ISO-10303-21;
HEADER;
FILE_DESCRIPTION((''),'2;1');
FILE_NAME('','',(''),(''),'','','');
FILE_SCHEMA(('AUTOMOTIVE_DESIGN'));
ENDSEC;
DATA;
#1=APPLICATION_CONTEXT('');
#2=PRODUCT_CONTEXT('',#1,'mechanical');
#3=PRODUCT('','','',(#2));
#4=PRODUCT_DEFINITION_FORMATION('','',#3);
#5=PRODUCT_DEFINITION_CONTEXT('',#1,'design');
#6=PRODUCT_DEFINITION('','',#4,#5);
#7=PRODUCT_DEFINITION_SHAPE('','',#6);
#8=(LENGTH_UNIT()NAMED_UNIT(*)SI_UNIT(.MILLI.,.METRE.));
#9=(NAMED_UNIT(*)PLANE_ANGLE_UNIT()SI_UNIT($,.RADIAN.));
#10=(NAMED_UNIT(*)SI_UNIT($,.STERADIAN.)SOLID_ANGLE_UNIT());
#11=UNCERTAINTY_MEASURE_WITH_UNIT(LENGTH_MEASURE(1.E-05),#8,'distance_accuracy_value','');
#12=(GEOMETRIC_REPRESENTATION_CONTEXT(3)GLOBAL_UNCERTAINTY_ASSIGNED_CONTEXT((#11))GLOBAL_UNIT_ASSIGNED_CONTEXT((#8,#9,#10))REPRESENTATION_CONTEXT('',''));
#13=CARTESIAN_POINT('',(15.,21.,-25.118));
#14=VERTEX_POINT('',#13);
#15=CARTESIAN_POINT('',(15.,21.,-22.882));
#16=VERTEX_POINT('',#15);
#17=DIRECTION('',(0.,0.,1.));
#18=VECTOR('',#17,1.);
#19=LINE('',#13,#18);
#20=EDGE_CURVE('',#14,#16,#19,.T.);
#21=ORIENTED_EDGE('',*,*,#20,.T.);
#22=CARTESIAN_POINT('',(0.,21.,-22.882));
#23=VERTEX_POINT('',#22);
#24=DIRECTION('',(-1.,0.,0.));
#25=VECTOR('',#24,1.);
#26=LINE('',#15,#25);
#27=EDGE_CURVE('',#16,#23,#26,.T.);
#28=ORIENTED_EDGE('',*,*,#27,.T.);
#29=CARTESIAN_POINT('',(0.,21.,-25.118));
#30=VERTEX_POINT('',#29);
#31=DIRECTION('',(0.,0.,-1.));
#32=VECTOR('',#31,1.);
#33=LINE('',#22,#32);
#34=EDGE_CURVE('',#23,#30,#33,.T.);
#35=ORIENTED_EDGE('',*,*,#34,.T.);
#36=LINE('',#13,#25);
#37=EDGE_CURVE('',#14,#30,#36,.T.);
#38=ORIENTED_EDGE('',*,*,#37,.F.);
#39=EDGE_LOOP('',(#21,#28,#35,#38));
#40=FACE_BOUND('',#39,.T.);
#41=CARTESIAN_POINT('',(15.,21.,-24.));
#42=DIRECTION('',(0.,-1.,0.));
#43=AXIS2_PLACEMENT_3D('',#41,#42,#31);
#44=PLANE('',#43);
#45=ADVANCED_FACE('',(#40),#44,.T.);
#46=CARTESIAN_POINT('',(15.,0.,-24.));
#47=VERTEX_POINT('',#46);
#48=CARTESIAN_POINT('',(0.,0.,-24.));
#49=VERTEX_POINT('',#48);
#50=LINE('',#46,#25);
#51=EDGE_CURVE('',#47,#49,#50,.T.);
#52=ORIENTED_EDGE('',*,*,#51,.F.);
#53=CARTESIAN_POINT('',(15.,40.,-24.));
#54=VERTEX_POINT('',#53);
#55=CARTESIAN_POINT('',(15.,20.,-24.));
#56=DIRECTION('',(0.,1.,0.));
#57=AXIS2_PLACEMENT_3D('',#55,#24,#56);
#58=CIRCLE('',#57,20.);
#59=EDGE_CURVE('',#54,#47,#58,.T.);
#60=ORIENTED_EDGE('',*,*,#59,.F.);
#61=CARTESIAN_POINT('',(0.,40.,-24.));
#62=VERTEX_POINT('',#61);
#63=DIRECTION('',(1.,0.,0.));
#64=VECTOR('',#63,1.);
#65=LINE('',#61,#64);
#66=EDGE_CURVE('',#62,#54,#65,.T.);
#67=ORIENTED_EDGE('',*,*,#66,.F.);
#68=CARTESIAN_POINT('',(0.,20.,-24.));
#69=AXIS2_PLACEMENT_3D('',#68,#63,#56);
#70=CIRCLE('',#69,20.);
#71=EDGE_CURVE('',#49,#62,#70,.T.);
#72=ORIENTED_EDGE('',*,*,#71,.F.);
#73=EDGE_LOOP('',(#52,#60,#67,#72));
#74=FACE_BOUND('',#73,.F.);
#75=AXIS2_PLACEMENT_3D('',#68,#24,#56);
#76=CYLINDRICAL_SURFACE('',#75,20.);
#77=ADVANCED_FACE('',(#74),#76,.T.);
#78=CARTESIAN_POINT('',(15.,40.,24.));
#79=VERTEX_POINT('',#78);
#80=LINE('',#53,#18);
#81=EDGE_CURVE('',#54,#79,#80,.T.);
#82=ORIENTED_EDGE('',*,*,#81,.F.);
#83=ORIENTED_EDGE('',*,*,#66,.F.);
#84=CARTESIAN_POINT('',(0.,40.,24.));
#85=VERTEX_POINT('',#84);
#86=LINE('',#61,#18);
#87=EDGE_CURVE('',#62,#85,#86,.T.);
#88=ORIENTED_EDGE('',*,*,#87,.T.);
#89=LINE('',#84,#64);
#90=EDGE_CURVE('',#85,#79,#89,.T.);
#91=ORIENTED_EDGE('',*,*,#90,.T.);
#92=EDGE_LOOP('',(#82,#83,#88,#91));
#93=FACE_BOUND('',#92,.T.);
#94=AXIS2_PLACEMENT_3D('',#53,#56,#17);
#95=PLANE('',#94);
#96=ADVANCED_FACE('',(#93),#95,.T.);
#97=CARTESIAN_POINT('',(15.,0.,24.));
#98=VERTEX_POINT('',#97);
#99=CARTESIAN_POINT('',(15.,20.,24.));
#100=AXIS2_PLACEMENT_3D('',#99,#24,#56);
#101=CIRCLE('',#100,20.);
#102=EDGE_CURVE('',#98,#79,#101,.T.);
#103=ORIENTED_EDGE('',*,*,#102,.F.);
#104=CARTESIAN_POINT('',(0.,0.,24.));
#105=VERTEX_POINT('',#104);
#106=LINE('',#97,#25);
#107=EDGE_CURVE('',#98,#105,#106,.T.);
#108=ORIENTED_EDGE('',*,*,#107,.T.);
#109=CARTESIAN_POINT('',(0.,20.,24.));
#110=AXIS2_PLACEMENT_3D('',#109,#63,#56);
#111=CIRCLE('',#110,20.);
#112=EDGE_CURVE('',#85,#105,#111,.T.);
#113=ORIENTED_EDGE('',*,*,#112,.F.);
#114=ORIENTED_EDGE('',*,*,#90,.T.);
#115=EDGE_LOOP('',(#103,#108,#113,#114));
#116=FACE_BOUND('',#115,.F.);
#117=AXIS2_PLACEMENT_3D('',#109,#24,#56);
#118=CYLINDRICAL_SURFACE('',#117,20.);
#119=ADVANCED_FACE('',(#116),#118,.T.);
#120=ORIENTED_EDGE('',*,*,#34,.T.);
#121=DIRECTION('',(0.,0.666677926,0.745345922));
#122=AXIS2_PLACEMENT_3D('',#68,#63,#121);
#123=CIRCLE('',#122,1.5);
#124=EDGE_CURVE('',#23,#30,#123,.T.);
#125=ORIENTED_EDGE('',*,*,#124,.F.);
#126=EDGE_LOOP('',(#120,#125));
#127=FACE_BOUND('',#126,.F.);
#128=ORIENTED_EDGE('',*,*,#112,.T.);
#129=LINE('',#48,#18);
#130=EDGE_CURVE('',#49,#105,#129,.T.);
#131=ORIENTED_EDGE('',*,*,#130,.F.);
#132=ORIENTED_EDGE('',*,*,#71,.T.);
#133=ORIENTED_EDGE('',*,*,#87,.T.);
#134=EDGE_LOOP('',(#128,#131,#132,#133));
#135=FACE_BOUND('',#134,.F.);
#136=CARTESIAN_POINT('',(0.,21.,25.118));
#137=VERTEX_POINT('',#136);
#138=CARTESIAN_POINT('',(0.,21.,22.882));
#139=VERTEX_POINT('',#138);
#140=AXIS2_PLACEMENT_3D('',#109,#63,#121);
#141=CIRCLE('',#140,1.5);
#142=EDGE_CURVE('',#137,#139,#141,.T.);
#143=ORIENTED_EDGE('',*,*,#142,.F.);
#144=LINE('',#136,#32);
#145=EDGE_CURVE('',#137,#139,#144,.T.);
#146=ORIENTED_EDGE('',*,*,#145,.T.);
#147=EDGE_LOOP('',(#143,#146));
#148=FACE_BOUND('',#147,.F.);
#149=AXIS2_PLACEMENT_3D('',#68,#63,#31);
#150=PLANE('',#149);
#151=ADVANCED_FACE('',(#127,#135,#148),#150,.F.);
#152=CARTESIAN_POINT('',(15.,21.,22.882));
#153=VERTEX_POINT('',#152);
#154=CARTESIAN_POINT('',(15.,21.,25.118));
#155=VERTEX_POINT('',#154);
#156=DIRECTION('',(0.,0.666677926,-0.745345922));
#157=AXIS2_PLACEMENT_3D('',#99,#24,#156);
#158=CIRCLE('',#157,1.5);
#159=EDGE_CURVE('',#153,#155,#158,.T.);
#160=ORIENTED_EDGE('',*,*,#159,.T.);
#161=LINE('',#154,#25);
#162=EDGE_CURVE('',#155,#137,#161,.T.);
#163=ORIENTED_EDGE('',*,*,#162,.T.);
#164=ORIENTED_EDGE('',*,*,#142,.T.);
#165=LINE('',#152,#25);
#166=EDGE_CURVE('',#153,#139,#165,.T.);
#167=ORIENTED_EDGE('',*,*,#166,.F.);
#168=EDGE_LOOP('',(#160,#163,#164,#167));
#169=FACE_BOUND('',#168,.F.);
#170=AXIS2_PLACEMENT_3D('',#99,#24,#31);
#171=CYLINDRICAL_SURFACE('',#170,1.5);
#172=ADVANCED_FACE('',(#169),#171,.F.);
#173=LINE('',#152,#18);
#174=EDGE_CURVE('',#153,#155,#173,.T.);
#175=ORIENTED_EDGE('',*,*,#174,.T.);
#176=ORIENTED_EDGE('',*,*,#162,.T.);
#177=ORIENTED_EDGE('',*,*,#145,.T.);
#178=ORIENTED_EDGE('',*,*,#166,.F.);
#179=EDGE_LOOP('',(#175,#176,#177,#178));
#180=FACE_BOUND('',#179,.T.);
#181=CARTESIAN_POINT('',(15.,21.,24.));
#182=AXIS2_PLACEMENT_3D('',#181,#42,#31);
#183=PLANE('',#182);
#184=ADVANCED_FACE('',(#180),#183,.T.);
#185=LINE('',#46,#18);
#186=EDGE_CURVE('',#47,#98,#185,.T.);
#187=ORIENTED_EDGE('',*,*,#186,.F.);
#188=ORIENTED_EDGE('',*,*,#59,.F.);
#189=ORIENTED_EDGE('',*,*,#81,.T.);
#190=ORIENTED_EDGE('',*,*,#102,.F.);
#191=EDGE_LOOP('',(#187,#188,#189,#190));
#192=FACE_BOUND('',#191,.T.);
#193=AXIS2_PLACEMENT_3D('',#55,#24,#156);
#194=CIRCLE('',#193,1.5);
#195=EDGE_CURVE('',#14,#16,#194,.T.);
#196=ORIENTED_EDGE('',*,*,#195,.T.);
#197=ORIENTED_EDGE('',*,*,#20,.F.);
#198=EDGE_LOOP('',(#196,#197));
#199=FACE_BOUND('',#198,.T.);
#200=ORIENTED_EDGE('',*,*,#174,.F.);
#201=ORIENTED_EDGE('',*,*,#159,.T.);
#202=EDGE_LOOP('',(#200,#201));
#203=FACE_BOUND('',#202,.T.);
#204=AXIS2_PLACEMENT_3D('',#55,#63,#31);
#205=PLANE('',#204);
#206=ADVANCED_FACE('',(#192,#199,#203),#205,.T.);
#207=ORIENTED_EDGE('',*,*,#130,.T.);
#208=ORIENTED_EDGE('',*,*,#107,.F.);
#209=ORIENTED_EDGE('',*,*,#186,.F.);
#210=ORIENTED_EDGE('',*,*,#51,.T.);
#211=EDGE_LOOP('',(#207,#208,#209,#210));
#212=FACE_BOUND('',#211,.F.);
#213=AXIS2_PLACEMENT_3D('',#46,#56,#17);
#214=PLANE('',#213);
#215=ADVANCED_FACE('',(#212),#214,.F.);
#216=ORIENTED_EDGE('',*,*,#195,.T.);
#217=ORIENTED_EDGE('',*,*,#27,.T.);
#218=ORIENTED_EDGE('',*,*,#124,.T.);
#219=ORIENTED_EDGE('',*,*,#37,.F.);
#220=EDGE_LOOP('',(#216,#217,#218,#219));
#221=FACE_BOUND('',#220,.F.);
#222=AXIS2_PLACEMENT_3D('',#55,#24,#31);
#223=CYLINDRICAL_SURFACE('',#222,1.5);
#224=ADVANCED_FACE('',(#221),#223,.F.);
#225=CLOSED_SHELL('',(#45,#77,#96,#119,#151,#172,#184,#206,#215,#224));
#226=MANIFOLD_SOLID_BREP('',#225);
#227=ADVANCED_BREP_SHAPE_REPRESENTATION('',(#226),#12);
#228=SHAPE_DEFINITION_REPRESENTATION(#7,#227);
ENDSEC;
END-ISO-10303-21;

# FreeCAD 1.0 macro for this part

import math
import FreeCAD as App
import Part
import Sketcher

doc = App.newDocument("Part")
params = doc.addObject("Spreadsheet::Sheet", "Params")
for row, (alias, value) in enumerate([
    ("sketch1_diameter", "40 mm"),
    ("pad1_length", "15 mm"),
    ("sketch2_radius", "20 mm"),
    ("sketch2_height", "48 mm"),
    ("pad2_length", "15 mm"),
    ("sketch3_diameter", "3 mm"),
    ("hole_diameter", "3 mm"),
    ("sketch4_diameter", "3 mm"),
    ("hole2_diameter", "3 mm"),
    ("sketch5_radius", "1.5 mm"),
    ("pad3_length", "15 mm"),
], start=1):
    params.set(f"A{row}", alias)
    params.set(f"B{row}", "=" + value)
    params.setAlias(f"B{row}", alias)

body = doc.addObject("PartDesign::Body", "Body")
body.AllowCompound = True

# Sketch on YZ plane
sketch1 = body.newObject("Sketcher::SketchObject", "Sketch")
sketch1.AttachmentSupport = (doc.getObject("YZ_Plane"), [""])
sketch1.MapMode = "FlatFace"
sketch1.addGeometry([
    Part.Circle(App.Vector(20, -24, 0), App.Vector(0, 0, 1), 20),
    Part.Circle(App.Vector(20, 24, 0), App.Vector(0, 0, 1), 20),
], False)
sketch1.addConstraint([
    Sketcher.Constraint("Equal", 0, 1),
    Sketcher.Constraint("Symmetric", 0, 3, 1, 3, -1),
    Sketcher.Constraint("Diameter", 0, 40.0),
    Sketcher.Constraint("DistanceY", 0, 3, -1, 1, 24.0),
    Sketcher.Constraint("DistanceX", -1, 1, 0, 3, 20.0),
])
sketch1.setExpression("Constraints[2]", "Params.sketch1_diameter")
pad1 = body.newObject("PartDesign::Pad", "Pad")
pad1.Profile = sketch1
pad1.setExpression("Length", "Params.pad1_length")

# Sketch on YZ plane
sketch2 = body.newObject("Sketcher::SketchObject", "Sketch001")
sketch2.AttachmentSupport = (doc.getObject("YZ_Plane"), [""])
sketch2.MapMode = "FlatFace"
sketch2.AttachmentOffset = App.Placement(App.Vector(0, 0, 15), App.Rotation())
sketch2.addGeometry([
    Part.ArcOfCircle(Part.Circle(App.Vector(20, -24, 0), App.Vector(0, 0, 1), 20), math.radians(0), math.radians(180)),
    Part.LineSegment(App.Vector(40, -24, 0), App.Vector(40, 24, 0)),
    Part.ArcOfCircle(Part.Circle(App.Vector(20, 24, 0), App.Vector(0, 0, 1), 20), math.radians(180), math.radians(360)),
    Part.LineSegment(App.Vector(0, 24, 0), App.Vector(0, -24, 0)),
], False)
sketch2.addConstraint([
    Sketcher.Constraint("Tangent", 0, 1, 1, 1),
    Sketcher.Constraint("Tangent", 1, 2, 2, 2),
    Sketcher.Constraint("Tangent", 2, 1, 3, 1),
    Sketcher.Constraint("Tangent", 3, 2, 0, 2),
    Sketcher.Constraint("Vertical", 1),
    Sketcher.Constraint("Vertical", 3),
    Sketcher.Constraint("Symmetric", 2, 1, 3, 2, -1, 1),
    Sketcher.Constraint("Radius", 0, 20.0),
    Sketcher.Constraint("DistanceY", 1, 1, 1, 2, 48.0),
])
sketch2.setExpression("Constraints[7]", "Params.sketch2_radius")
sketch2.setExpression("Constraints[8]", "Params.sketch2_height")
pad2 = body.newObject("PartDesign::Pad", "Pad001")
pad2.Profile = sketch2
pad2.setExpression("Length", "Params.pad2_length")
pad2.Reversed = True

# Sketch on YZ plane
sketch3 = body.newObject("Sketcher::SketchObject", "Sketch002")
sketch3.AttachmentSupport = (doc.getObject("YZ_Plane"), [""])
sketch3.MapMode = "FlatFace"
sketch3.AttachmentOffset = App.Placement(App.Vector(0, 0, 15), App.Rotation())
sketch3.addGeometry(Part.Circle(App.Vector(20, 24, 0), App.Vector(0, 0, 1), 1.5), False)
sketch3.addConstraint([
    Sketcher.Constraint("Diameter", 0, 3.0),
    Sketcher.Constraint("DistanceX", -1, 1, 0, 3, 20.0),
    Sketcher.Constraint("DistanceY", -1, 1, 0, 3, 24.0),
])
sketch3.setExpression("Constraints[0]", "Params.sketch3_diameter")
doc.recompute()
hole = body.newObject("PartDesign::Hole", "Hole")
hole.Profile = sketch3
hole.ThreadType = "None"
hole.setExpression("Diameter", "Params.hole_diameter")
hole.DepthType = "ThroughAll"

# Sketch on YZ plane
sketch4 = body.newObject("Sketcher::SketchObject", "Sketch003")
sketch4.AttachmentSupport = (doc.getObject("YZ_Plane"), [""])
sketch4.MapMode = "FlatFace"
sketch4.AttachmentOffset = App.Placement(App.Vector(0, 0, 15), App.Rotation())
sketch4.addGeometry(Part.Circle(App.Vector(20, -24, 0), App.Vector(0, 0, 1), 1.5), False)
sketch4.addConstraint([
    Sketcher.Constraint("Diameter", 0, 3.0),
    Sketcher.Constraint("DistanceX", -1, 1, 0, 3, 20.0),
    Sketcher.Constraint("DistanceY", 0, 3, -1, 1, 24.0),
])
sketch4.setExpression("Constraints[0]", "Params.sketch4_diameter")
doc.recompute()
hole2 = body.newObject("PartDesign::Hole", "Hole001")
hole2.Profile = sketch4
hole2.ThreadType = "None"
hole2.setExpression("Diameter", "Params.hole2_diameter")
hole2.DepthType = "ThroughAll"

# Sketch on YZ plane
sketch5 = body.newObject("Sketcher::SketchObject", "Sketch004")
sketch5.AttachmentSupport = (doc.getObject("YZ_Plane"), [""])
sketch5.MapMode = "FlatFace"
sketch5.AttachmentOffset = App.Placement(App.Vector(0, 0, 15), App.Rotation())
sketch5.addGeometry([
    Part.LineSegment(App.Vector(21, 25.1, 0), App.Vector(21, 22.9, 0)),
    Part.ArcOfCircle(Part.Circle(App.Vector(20, 24, 0), App.Vector(0, 0, 1), 1.5), math.radians(-48), math.radians(48)),
    Part.LineSegment(App.Vector(21, -22.9, 0), App.Vector(21, -25.1, 0)),
    Part.ArcOfCircle(Part.Circle(App.Vector(20, -24, 0), App.Vector(0, 0, 1), 1.5), math.radians(-48), math.radians(48)),
], False)
sketch5.addConstraint([
    Sketcher.Constraint("Coincident", 0, 1, 1, 2),
    Sketcher.Constraint("Coincident", 1, 1, 0, 2),
    Sketcher.Constraint("Coincident", 2, 1, 3, 2),
    Sketcher.Constraint("Coincident", 3, 1, 2, 2),
    Sketcher.Constraint("Vertical", 0),
    Sketcher.Constraint("Vertical", 2),
    Sketcher.Constraint("Equal", 1, 3),
    Sketcher.Constraint("Symmetric", 1, 3, 3, 3, -1),
    Sketcher.Constraint("Vertical", 1, 1, 2, 1),
    Sketcher.Constraint("Radius", 1, 1.5),
    Sketcher.Constraint("DistanceX", -1, 1, 1, 3, 20.0),
    Sketcher.Constraint("DistanceY", -1, 1, 1, 3, 24.0),
    Sketcher.Constraint("DistanceX", -1, 1, 0, 1, 21.0),
])
sketch5.setExpression("Constraints[9]", "Params.sketch5_radius")
pad3 = body.newObject("PartDesign::Pad", "Pad002")
pad3.Profile = sketch5
pad3.setExpression("Length", "Params.pad3_length")
pad3.Reversed = True

doc.recompute()
